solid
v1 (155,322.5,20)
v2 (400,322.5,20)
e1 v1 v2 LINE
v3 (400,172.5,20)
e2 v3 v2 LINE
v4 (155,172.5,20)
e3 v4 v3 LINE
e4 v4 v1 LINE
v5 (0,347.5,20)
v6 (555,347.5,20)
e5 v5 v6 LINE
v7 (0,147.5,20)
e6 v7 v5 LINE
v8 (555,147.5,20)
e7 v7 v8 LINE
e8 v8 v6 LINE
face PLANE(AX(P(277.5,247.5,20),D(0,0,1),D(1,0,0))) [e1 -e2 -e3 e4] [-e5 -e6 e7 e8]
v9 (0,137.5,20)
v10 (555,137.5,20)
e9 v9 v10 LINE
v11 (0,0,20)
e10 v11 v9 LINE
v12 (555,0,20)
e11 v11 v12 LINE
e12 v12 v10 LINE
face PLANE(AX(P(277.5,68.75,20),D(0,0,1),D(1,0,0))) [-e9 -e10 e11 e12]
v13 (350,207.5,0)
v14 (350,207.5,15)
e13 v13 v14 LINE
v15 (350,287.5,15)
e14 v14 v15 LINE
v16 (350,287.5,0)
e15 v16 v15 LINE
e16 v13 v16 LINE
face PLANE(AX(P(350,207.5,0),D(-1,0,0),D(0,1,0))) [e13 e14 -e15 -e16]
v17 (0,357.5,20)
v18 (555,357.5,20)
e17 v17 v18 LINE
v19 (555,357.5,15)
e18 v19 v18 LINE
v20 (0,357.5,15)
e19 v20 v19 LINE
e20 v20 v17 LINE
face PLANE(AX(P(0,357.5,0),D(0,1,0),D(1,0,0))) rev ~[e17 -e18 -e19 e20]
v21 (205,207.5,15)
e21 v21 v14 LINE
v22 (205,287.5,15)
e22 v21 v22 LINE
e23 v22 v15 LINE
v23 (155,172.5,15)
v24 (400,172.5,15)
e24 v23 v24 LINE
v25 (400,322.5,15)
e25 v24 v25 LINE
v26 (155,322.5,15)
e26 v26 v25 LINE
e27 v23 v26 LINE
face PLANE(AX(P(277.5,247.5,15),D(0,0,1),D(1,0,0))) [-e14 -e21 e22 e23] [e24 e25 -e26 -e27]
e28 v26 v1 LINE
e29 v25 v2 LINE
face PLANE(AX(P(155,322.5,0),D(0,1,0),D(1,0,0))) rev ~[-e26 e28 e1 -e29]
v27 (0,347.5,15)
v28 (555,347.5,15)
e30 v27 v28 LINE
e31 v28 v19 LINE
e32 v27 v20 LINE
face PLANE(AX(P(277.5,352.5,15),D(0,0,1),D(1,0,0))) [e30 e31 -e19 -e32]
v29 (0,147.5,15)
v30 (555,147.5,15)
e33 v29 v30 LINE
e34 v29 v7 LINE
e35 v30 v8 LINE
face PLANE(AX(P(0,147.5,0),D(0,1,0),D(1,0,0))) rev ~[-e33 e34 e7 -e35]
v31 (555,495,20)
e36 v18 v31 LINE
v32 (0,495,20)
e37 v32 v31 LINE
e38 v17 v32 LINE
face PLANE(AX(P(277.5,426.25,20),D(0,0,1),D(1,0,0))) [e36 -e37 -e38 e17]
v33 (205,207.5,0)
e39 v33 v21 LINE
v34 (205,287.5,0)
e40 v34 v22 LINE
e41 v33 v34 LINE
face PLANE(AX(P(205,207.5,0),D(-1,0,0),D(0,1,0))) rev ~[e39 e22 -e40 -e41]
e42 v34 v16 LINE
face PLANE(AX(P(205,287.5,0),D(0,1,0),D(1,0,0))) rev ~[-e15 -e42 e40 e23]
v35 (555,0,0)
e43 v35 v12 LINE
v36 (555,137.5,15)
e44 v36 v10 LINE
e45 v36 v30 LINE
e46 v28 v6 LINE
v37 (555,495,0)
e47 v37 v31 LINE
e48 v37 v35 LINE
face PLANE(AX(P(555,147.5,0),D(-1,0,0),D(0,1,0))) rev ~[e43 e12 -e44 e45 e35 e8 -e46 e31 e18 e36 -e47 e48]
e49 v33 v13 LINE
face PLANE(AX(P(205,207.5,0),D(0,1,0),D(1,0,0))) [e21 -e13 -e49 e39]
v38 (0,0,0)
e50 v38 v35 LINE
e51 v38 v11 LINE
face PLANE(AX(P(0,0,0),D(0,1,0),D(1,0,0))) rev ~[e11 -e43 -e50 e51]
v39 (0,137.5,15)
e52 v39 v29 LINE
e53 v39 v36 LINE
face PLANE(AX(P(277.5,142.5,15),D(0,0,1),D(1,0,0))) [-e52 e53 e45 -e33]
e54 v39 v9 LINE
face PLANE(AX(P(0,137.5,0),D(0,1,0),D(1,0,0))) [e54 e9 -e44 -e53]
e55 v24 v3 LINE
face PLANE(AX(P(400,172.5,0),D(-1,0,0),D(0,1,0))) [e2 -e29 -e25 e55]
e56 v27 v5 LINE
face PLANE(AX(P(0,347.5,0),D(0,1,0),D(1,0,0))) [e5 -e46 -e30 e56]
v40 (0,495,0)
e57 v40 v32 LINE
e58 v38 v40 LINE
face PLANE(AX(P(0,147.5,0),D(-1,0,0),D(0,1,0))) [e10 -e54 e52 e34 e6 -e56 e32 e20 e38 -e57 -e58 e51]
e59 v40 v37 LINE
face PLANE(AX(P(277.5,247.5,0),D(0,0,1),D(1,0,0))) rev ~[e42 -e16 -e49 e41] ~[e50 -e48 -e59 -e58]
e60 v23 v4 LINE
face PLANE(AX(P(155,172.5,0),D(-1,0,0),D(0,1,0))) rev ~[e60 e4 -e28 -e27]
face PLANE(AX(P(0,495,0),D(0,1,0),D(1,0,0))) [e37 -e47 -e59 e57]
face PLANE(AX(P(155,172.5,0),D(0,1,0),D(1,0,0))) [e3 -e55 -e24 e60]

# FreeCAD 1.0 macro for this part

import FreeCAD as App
import Part
import Sketcher

doc = App.newDocument("Part")
params = doc.addObject("Spreadsheet::Sheet", "Params")
for row, (alias, value) in enumerate([
    ("sketch1_width", "555 mm"),
    ("sketch1_width2", "245 mm"),
    ("sketch1_height", "200 mm"),
    ("sketch1_height2", "150 mm"),
    ("sketch1_height3", "137.5 mm"),
    ("pad1_length", "20 mm"),
    ("sketch2_width", "245 mm"),
    ("sketch2_width2", "145 mm"),
    ("sketch2_width3", "555 mm"),
    ("sketch2_height", "150 mm"),
    ("sketch2_height2", "80 mm"),
    ("pad2_length", "15 mm"),
], start=1):
    params.set(f"A{row}", alias)
    params.set(f"B{row}", "=" + value)
    params.setAlias(f"B{row}", alias)

body = doc.addObject("PartDesign::Body", "Body")
body.AllowCompound = True

# Sketch on XY plane
sketch1 = body.newObject("Sketcher::SketchObject", "Sketch")
sketch1.AttachmentSupport = (doc.getObject("XY_Plane"), [""])
sketch1.MapMode = "FlatFace"
sketch1.addGeometry([
    Part.LineSegment(App.Vector(0, 138, 0), App.Vector(0, 0, 0)),  # 0
    Part.LineSegment(App.Vector(0, 0, 0), App.Vector(555, 0, 0)),  # 1
    Part.LineSegment(App.Vector(555, 0, 0), App.Vector(555, 138, 0)),  # 2
    Part.LineSegment(App.Vector(555, 138, 0), App.Vector(0, 138, 0)),  # 3
    Part.LineSegment(App.Vector(0, 495, 0), App.Vector(0, 358, 0)),  # 4
    Part.LineSegment(App.Vector(0, 358, 0), App.Vector(555, 358, 0)),  # 5
    Part.LineSegment(App.Vector(555, 358, 0), App.Vector(555, 495, 0)),  # 6
    Part.LineSegment(App.Vector(555, 495, 0), App.Vector(0, 495, 0)),  # 7
    Part.LineSegment(App.Vector(0, 348, 0), App.Vector(0, 148, 0)),  # 8
    Part.LineSegment(App.Vector(0, 148, 0), App.Vector(555, 148, 0)),  # 9
    Part.LineSegment(App.Vector(555, 148, 0), App.Vector(555, 348, 0)),  # 10
    Part.LineSegment(App.Vector(555, 348, 0), App.Vector(0, 348, 0)),  # 11
    Part.LineSegment(App.Vector(400, 172, 0), App.Vector(155, 172, 0)),  # 12
    Part.LineSegment(App.Vector(155, 172, 0), App.Vector(155, 322, 0)),  # 13
    Part.LineSegment(App.Vector(155, 322, 0), App.Vector(400, 322, 0)),  # 14
    Part.LineSegment(App.Vector(400, 322, 0), App.Vector(400, 172, 0)),  # 15
], False)
sketch1.addConstraint([
    Sketcher.Constraint("Coincident", 0, 2, 1, 1),
    Sketcher.Constraint("Coincident", 1, 2, 2, 1),
    Sketcher.Constraint("Coincident", 2, 2, 3, 1),
    Sketcher.Constraint("Coincident", 3, 2, 0, 1),
    Sketcher.Constraint("Coincident", 4, 2, 5, 1),
    Sketcher.Constraint("Coincident", 5, 2, 6, 1),
    Sketcher.Constraint("Coincident", 6, 2, 7, 1),
    Sketcher.Constraint("Coincident", 7, 2, 4, 1),
    Sketcher.Constraint("Coincident", 8, 2, 9, 1),
    Sketcher.Constraint("Coincident", 9, 2, 10, 1),
    Sketcher.Constraint("Coincident", 10, 2, 11, 1),
    Sketcher.Constraint("Coincident", 11, 2, 8, 1),
    Sketcher.Constraint("Coincident", 12, 2, 13, 1),
    Sketcher.Constraint("Coincident", 13, 2, 14, 1),
    Sketcher.Constraint("Coincident", 14, 2, 15, 1),
    Sketcher.Constraint("Coincident", 15, 2, 12, 1),
    Sketcher.Constraint("Vertical", 0),
    Sketcher.Constraint("Horizontal", 1),
    Sketcher.Constraint("Vertical", 2),
    Sketcher.Constraint("Horizontal", 3),
    Sketcher.Constraint("Vertical", 4),
    Sketcher.Constraint("Horizontal", 5),
    Sketcher.Constraint("Vertical", 6),
    Sketcher.Constraint("Horizontal", 7),
    Sketcher.Constraint("Vertical", 8),
    Sketcher.Constraint("Horizontal", 9),
    Sketcher.Constraint("Vertical", 10),
    Sketcher.Constraint("Horizontal", 11),
    Sketcher.Constraint("Horizontal", 12),
    Sketcher.Constraint("Vertical", 13),
    Sketcher.Constraint("Horizontal", 14),
    Sketcher.Constraint("Vertical", 15),
    Sketcher.Constraint("Coincident", 0, 2, -1, 1),
    Sketcher.Constraint("PointOnObject", 4, 2, -2),
    Sketcher.Constraint("PointOnObject", 8, 2, -2),
    Sketcher.Constraint("Vertical", 2, 2, 5, 2),
    Sketcher.Constraint("Vertical", 6, 2, 9, 2),
    Sketcher.Constraint("Equal", 2, 4),
    Sketcher.Constraint("DistanceX", 1, 1, 1, 2, 555.0),
    Sketcher.Constraint("DistanceX", 12, 2, 12, 1, 245.0),
    Sketcher.Constraint("DistanceY", 8, 2, 8, 1, 200.0),
    Sketcher.Constraint("DistanceY", 13, 1, 13, 2, 150.0),
    Sketcher.Constraint("DistanceY", 0, 2, 0, 1, 137.5),
    Sketcher.Constraint("DistanceY", -1, 1, 6, 2, 495.0),
    Sketcher.Constraint("DistanceX", -1, 1, 12, 2, 155.0),
    Sketcher.Constraint("DistanceY", 3, 2, 8, 2, 10.0),
    Sketcher.Constraint("DistanceY", 8, 2, 12, 2, 25.0),
])
sketch1.setExpression("Constraints[38]", "Params.sketch1_width")
sketch1.setExpression("Constraints[39]", "Params.sketch1_width2")
sketch1.setExpression("Constraints[40]", "Params.sketch1_height")
sketch1.setExpression("Constraints[41]", "Params.sketch1_height2")
sketch1.setExpression("Constraints[42]", "Params.sketch1_height3")
pad1 = body.newObject("PartDesign::Pad", "Pad")
pad1.Profile = sketch1
pad1.setExpression("Length", "Params.pad1_length")

# Sketch on XY plane
sketch2 = body.newObject("Sketcher::SketchObject", "Sketch001")
sketch2.AttachmentSupport = (doc.getObject("XY_Plane"), [""])
sketch2.MapMode = "FlatFace"
sketch2.addGeometry([
    Part.LineSegment(App.Vector(155, 322, 0), App.Vector(155, 172, 0)),  # 0
    Part.LineSegment(App.Vector(155, 172, 0), App.Vector(400, 172, 0)),  # 1
    Part.LineSegment(App.Vector(400, 172, 0), App.Vector(400, 322, 0)),  # 2
    Part.LineSegment(App.Vector(400, 322, 0), App.Vector(155, 322, 0)),  # 3
    Part.LineSegment(App.Vector(350, 208, 0), App.Vector(205, 208, 0)),  # 4
    Part.LineSegment(App.Vector(205, 208, 0), App.Vector(205, 288, 0)),  # 5
    Part.LineSegment(App.Vector(205, 288, 0), App.Vector(350, 288, 0)),  # 6
    Part.LineSegment(App.Vector(350, 288, 0), App.Vector(350, 208, 0)),  # 7
    Part.LineSegment(App.Vector(0, 358, 0), App.Vector(0, 348, 0)),  # 8
    Part.LineSegment(App.Vector(0, 348, 0), App.Vector(555, 348, 0)),  # 9
    Part.LineSegment(App.Vector(555, 348, 0), App.Vector(555, 358, 0)),  # 10
    Part.LineSegment(App.Vector(555, 358, 0), App.Vector(0, 358, 0)),  # 11
    Part.LineSegment(App.Vector(0, 148, 0), App.Vector(0, 138, 0)),  # 12
    Part.LineSegment(App.Vector(0, 138, 0), App.Vector(555, 138, 0)),  # 13
    Part.LineSegment(App.Vector(555, 138, 0), App.Vector(555, 148, 0)),  # 14
    Part.LineSegment(App.Vector(555, 148, 0), App.Vector(0, 148, 0)),  # 15
], False)
sketch2.addConstraint([
    Sketcher.Constraint("Coincident", 0, 2, 1, 1),
    Sketcher.Constraint("Coincident", 1, 2, 2, 1),
    Sketcher.Constraint("Coincident", 2, 2, 3, 1),
    Sketcher.Constraint("Coincident", 3, 2, 0, 1),
    Sketcher.Constraint("Coincident", 4, 2, 5, 1),
    Sketcher.Constraint("Coincident", 5, 2, 6, 1),
    Sketcher.Constraint("Coincident", 6, 2, 7, 1),
    Sketcher.Constraint("Coincident", 7, 2, 4, 1),
    Sketcher.Constraint("Coincident", 8, 2, 9, 1),
    Sketcher.Constraint("Coincident", 9, 2, 10, 1),
    Sketcher.Constraint("Coincident", 10, 2, 11, 1),
    Sketcher.Constraint("Coincident", 11, 2, 8, 1),
    Sketcher.Constraint("Coincident", 12, 2, 13, 1),
    Sketcher.Constraint("Coincident", 13, 2, 14, 1),
    Sketcher.Constraint("Coincident", 14, 2, 15, 1),
    Sketcher.Constraint("Coincident", 15, 2, 12, 1),
    Sketcher.Constraint("Vertical", 0),
    Sketcher.Constraint("Horizontal", 1),
    Sketcher.Constraint("Vertical", 2),
    Sketcher.Constraint("Horizontal", 3),
    Sketcher.Constraint("Horizontal", 4),
    Sketcher.Constraint("Vertical", 5),
    Sketcher.Constraint("Horizontal", 6),
    Sketcher.Constraint("Vertical", 7),
    Sketcher.Constraint("Vertical", 8),
    Sketcher.Constraint("Horizontal", 9),
    Sketcher.Constraint("Vertical", 10),
    Sketcher.Constraint("Horizontal", 11),
    Sketcher.Constraint("Vertical", 12),
    Sketcher.Constraint("Horizontal", 13),
    Sketcher.Constraint("Vertical", 14),
    Sketcher.Constraint("Horizontal", 15),
    Sketcher.Constraint("PointOnObject", 8, 2, -2),
    Sketcher.Constraint("PointOnObject", 12, 2, -2),
    Sketcher.Constraint("Vertical", 10, 2, 13, 2),
    Sketcher.Constraint("Equal", 10, 12),
    Sketcher.Constraint("DistanceX", 1, 1, 1, 2, 245.0),
    Sketcher.Constraint("DistanceX", 4, 2, 4, 1, 145.0),
    Sketcher.Constraint("DistanceX", 9, 1, 9, 2, 555.0),
    Sketcher.Constraint("DistanceY", 0, 2, 0, 1, 150.0),
    Sketcher.Constraint("DistanceY", 5, 1, 5, 2, 80.0),
    Sketcher.Constraint("DistanceY", 8, 2, 8, 1, 10.0),
    Sketcher.Constraint("DistanceX", -1, 1, 0, 2, 155.0),
    Sketcher.Constraint("DistanceX", -1, 1, 4, 2, 205.0),
    Sketcher.Constraint("DistanceY", 0, 2, 4, 2, 35.0),
    Sketcher.Constraint("DistanceY", 3, 2, 8, 2, 25.0),
    Sketcher.Constraint("DistanceY", 12, 2, 0, 2, 35.0),
    Sketcher.Constraint("DistanceY", -1, 1, 0, 2, 172.5),
])
sketch2.setExpression("Constraints[36]", "Params.sketch2_width")
sketch2.setExpression("Constraints[37]", "Params.sketch2_width2")
sketch2.setExpression("Constraints[38]", "Params.sketch2_width3")
sketch2.setExpression("Constraints[39]", "Params.sketch2_height")
sketch2.setExpression("Constraints[40]", "Params.sketch2_height2")
pad2 = body.newObject("PartDesign::Pad", "Pad001")
pad2.Profile = sketch2
pad2.setExpression("Length", "Params.pad2_length")

doc.recompute()
